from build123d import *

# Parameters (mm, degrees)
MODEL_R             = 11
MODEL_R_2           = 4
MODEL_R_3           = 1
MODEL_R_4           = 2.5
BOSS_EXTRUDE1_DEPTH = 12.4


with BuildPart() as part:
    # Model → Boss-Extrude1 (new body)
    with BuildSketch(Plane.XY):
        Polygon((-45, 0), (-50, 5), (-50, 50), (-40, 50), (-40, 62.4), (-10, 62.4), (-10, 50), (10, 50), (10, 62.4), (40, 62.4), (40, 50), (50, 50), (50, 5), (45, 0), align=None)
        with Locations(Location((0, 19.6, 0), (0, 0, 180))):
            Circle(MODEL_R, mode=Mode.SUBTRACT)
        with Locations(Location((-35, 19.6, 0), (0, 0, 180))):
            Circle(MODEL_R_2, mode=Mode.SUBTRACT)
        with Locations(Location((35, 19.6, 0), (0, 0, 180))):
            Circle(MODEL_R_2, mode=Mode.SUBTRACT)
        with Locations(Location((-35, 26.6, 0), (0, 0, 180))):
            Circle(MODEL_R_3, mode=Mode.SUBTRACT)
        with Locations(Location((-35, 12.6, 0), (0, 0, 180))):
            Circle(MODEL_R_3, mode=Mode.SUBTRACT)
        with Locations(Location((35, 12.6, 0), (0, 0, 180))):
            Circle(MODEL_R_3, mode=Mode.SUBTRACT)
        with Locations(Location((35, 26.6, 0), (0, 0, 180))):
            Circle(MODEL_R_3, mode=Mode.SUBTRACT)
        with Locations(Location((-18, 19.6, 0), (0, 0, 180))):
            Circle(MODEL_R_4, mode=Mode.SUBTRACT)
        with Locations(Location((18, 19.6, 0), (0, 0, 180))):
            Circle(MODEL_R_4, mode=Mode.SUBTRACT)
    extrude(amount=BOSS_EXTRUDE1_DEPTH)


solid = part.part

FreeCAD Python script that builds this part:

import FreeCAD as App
import Part
import Sketcher
Q = App.Units.Quantity

doc = App.newDocument("Part")
params = doc.addObject("Spreadsheet::Sheet", "Params")
for row, (alias, value) in enumerate([
    ("sketch1_diameter", "2 mm"),
    ("sketch1_diameter2", "8 mm"),
    ("sketch1_diameter3", "5 mm"),
    ("sketch1_diameter4", "22 mm"),
    ("sketch1_width", "90 mm"),
    ("pad1_length", "12.4 mm"),
], start=1):
    params.set(f"A{row}", alias)
    params.set(f"B{row}", "=" + value)
    params.setAlias(f"B{row}", alias)

body = doc.addObject("PartDesign::Body", "Body")

# Sketch on XY plane
sketch1 = body.newObject("Sketcher::SketchObject", "Sketch")
sketch1.AttachmentSupport = (doc.getObject("XY_Plane"), [""])
sketch1.MapMode = "FlatFace"
sketch1.addGeometry(Part.LineSegment(App.Vector(-50, 5, 0), App.Vector(-45, 0, 0)), False)
sketch1.addGeometry(Part.LineSegment(App.Vector(-45, 0, 0), App.Vector(45, 0, 0)), False)
sketch1.addGeometry(Part.LineSegment(App.Vector(45, 0, 0), App.Vector(50, 5, 0)), False)
sketch1.addGeometry(Part.LineSegment(App.Vector(50, 5, 0), App.Vector(50, 50, 0)), False)
sketch1.addGeometry(Part.LineSegment(App.Vector(50, 50, 0), App.Vector(40, 50, 0)), False)
sketch1.addGeometry(Part.LineSegment(App.Vector(40, 50, 0), App.Vector(40, 62.4, 0)), False)
sketch1.addGeometry(Part.LineSegment(App.Vector(40, 62.4, 0), App.Vector(10, 62.4, 0)), False)
sketch1.addGeometry(Part.LineSegment(App.Vector(10, 62.4, 0), App.Vector(10, 50, 0)), False)
sketch1.addGeometry(Part.LineSegment(App.Vector(10, 50, 0), App.Vector(-10, 50, 0)), False)
sketch1.addGeometry(Part.LineSegment(App.Vector(-10, 50, 0), App.Vector(-10, 62.4, 0)), False)
sketch1.addGeometry(Part.LineSegment(App.Vector(-10, 62.4, 0), App.Vector(-40, 62.4, 0)), False)
sketch1.addGeometry(Part.LineSegment(App.Vector(-40, 62.4, 0), App.Vector(-40, 50, 0)), False)
sketch1.addGeometry(Part.LineSegment(App.Vector(-40, 50, 0), App.Vector(-50, 50, 0)), False)
sketch1.addGeometry(Part.LineSegment(App.Vector(-50, 50, 0), App.Vector(-50, 5, 0)), False)
sketch1.addGeometry(Part.Circle(App.Vector(35, 12.6, 0), App.Vector(0, 0, 1), 1), False)
sketch1.addGeometry(Part.Circle(App.Vector(-35, 12.6, 0), App.Vector(0, 0, 1), 1), False)
sketch1.addGeometry(Part.Circle(App.Vector(35, 19.6, 0), App.Vector(0, 0, 1), 4), False)
sketch1.addGeometry(Part.Circle(App.Vector(18, 19.6, 0), App.Vector(0, 0, 1), 2.5), False)
sketch1.addGeometry(Part.Circle(App.Vector(35, 26.6, 0), App.Vector(0, 0, 1), 1), False)
sketch1.addGeometry(Part.Circle(App.Vector(0, 19.6, 0), App.Vector(0, 0, 1), 11), False)
sketch1.addGeometry(Part.Circle(App.Vector(-18, 19.6, 0), App.Vector(0, 0, 1), 2.5), False)
sketch1.addGeometry(Part.Circle(App.Vector(-35, 19.6, 0), App.Vector(0, 0, 1), 4), False)
sketch1.addGeometry(Part.Circle(App.Vector(-35, 26.6, 0), App.Vector(0, 0, 1), 1), False)
sketch1.addConstraint(Sketcher.Constraint("Coincident", 0, 2, 1, 1))
sketch1.addConstraint(Sketcher.Constraint("Coincident", 1, 2, 2, 1))
sketch1.addConstraint(Sketcher.Constraint("Coincident", 2, 2, 3, 1))
sketch1.addConstraint(Sketcher.Constraint("Coincident", 3, 2, 4, 1))
sketch1.addConstraint(Sketcher.Constraint("Coincident", 4, 2, 5, 1))
sketch1.addConstraint(Sketcher.Constraint("Coincident", 5, 2, 6, 1))
sketch1.addConstraint(Sketcher.Constraint("Coincident", 6, 2, 7, 1))
sketch1.addConstraint(Sketcher.Constraint("Coincident", 7, 2, 8, 1))
sketch1.addConstraint(Sketcher.Constraint("Coincident", 8, 2, 9, 1))
sketch1.addConstraint(Sketcher.Constraint("Coincident", 9, 2, 10, 1))
sketch1.addConstraint(Sketcher.Constraint("Coincident", 10, 2, 11, 1))
sketch1.addConstraint(Sketcher.Constraint("Coincident", 11, 2, 12, 1))
sketch1.addConstraint(Sketcher.Constraint("Coincident", 12, 2, 13, 1))
sketch1.addConstraint(Sketcher.Constraint("Coincident", 13, 2, 0, 1))
sketch1.addConstraint(Sketcher.Constraint("Horizontal", 1))
sketch1.addConstraint(Sketcher.Constraint("Vertical", 3))
sketch1.addConstraint(Sketcher.Constraint("Horizontal", 4))
sketch1.addConstraint(Sketcher.Constraint("Vertical", 5))
sketch1.addConstraint(Sketcher.Constraint("Horizontal", 6))
sketch1.addConstraint(Sketcher.Constraint("Vertical", 7))
sketch1.addConstraint(Sketcher.Constraint("Horizontal", 8))
sketch1.addConstraint(Sketcher.Constraint("Vertical", 9))
sketch1.addConstraint(Sketcher.Constraint("Horizontal", 10))
sketch1.addConstraint(Sketcher.Constraint("Vertical", 11))
sketch1.addConstraint(Sketcher.Constraint("Horizontal", 12))
sketch1.addConstraint(Sketcher.Constraint("Vertical", 13))
sketch1.addConstraint(Sketcher.Constraint("Equal", 14, 15))
sketch1.addConstraint(Sketcher.Constraint("Equal", 15, 18))
sketch1.addConstraint(Sketcher.Constraint("Equal", 17, 20))
sketch1.addConstraint(Sketcher.Constraint("Equal", 16, 21))
sketch1.addConstraint(Sketcher.Constraint("Equal", 18, 22))
sketch1.addConstraint(Sketcher.Constraint("Symmetric", 0, 2, 1, 2, -1, 1))
sketch1.addConstraint(Sketcher.Constraint("Symmetric", 14, 3, 15, 3, -2))
sketch1.addConstraint(Sketcher.Constraint("Symmetric", 17, 3, 20, 3, -2))
sketch1.addConstraint(Sketcher.Constraint("Symmetric", 16, 3, 21, 3, -2))
sketch1.addConstraint(Sketcher.Constraint("Symmetric", 18, 3, 22, 3, -2))
sketch1.addConstraint(Sketcher.Constraint("Symmetric", 6, 2, 9, 2, -2))
sketch1.addConstraint(Sketcher.Constraint("Symmetric", 4, 2, 11, 2, -2))
sketch1.addConstraint(Sketcher.Constraint("Symmetric", 2, 2, 13, 2, -2))
sketch1.addConstraint(Sketcher.Constraint("PointOnObject", 19, 3, -2))
sketch1.addConstraint(Sketcher.Constraint("Perpendicular", 0, 2))
sketch1.addConstraint(Sketcher.Constraint("Horizontal", 16, 3, 17, 3))
sketch1.addConstraint(Sketcher.Constraint("Horizontal", 17, 3, 19, 3))
sketch1.addConstraint(Sketcher.Constraint("Horizontal", 4, 2, 7, 2))
sketch1.addConstraint(Sketcher.Constraint("Vertical", 14, 3, 16, 3))
sketch1.addConstraint(Sketcher.Constraint("Vertical", 16, 3, 18, 3))
sketch1.addConstraint(Sketcher.Constraint("Diameter", 14, Q("2 mm")))
sketch1.addConstraint(Sketcher.Constraint("Diameter", 16, Q("8 mm")))
sketch1.addConstraint(Sketcher.Constraint("Diameter", 17, Q("5 mm")))
sketch1.addConstraint(Sketcher.Constraint("Diameter", 19, Q("22 mm")))
sketch1.addConstraint(Sketcher.Constraint("DistanceX", 1, 1, 1, 2, Q("90 mm")))
sketch1.addConstraint(Sketcher.Constraint("DistanceX", 4, 2, 4, 1, Q("10 mm")))
sketch1.addConstraint(Sketcher.Constraint("DistanceX", 6, 2, 6, 1, Q("30 mm")))
sketch1.addConstraint(Sketcher.Constraint("DistanceX", 8, 2, 8, 1, Q("20 mm")))
sketch1.addConstraint(Sketcher.Constraint("DistanceY", 3, 1, 3, 2, Q("45 mm")))
sketch1.addConstraint(Sketcher.Constraint("DistanceY", 5, 1, 5, 2, Q("12.4 mm")))
sketch1.addConstraint(Sketcher.Constraint("DistanceX", -1, 1, 14, 3, Q("35 mm")))
sketch1.addConstraint(Sketcher.Constraint("DistanceX", -1, 1, 17, 3, Q("18 mm")))
sketch1.addConstraint(Sketcher.Constraint("DistanceY", 14, 3, 16, 3, Q("7 mm")))
sketch1.addConstraint(Sketcher.Constraint("DistanceY", 16, 3, 18, 3, Q("7 mm")))
sketch1.addConstraint(Sketcher.Constraint("DistanceY", -1, 1, 14, 3, Q("12.6 mm")))
sketch1.setExpression("Constraints[46]", "Params.sketch1_diameter")
sketch1.setExpression("Constraints[47]", "Params.sketch1_diameter2")
sketch1.setExpression("Constraints[48]", "Params.sketch1_diameter3")
sketch1.setExpression("Constraints[49]", "Params.sketch1_diameter4")
sketch1.setExpression("Constraints[50]", "Params.sketch1_width")
pad1 = body.newObject("PartDesign::Pad", "Pad")
pad1.Profile = sketch1
pad1.setExpression("Length", "Params.pad1_length")

doc.recompute()
